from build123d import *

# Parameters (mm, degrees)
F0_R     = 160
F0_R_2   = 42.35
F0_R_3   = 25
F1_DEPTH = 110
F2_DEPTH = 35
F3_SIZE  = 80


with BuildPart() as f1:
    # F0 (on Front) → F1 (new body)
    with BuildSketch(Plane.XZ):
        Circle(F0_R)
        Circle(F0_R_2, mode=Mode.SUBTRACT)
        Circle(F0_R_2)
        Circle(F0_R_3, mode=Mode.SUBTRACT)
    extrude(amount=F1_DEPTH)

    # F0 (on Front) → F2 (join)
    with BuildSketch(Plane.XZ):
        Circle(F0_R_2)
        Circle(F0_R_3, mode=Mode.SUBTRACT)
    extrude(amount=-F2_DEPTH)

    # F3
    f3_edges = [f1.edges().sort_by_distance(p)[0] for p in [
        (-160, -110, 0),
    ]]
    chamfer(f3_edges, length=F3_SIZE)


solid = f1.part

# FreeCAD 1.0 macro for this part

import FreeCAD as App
import Part
import Sketcher


def edges_at(feature, points):
    """Names of the edges that pass closest to the given points."""
    edges = feature.Shape.Edges
    near = lambda p: min(range(len(edges)), key=lambda i: edges[i].distToShape(Part.Vertex(*p))[0])
    return sorted({f"Edge{near(p) + 1}" for p in points})

doc = App.newDocument("Part")
params = doc.addObject("Spreadsheet::Sheet", "Params")
for row, (alias, value) in enumerate([
    ("sketch1_diameter", "320 mm"),
    ("sketch1_diameter2", "50 mm"),
    ("pad1_length", "110 mm"),
    ("sketch2_diameter", "50 mm"),
    ("sketch2_diameter2", "84.7 mm"),
    ("pad2_length", "35 mm"),
    ("chamfer_size", "80 mm"),
], start=1):
    params.set(f"A{row}", alias)
    params.set(f"B{row}", "=" + value)
    params.setAlias(f"B{row}", alias)

body = doc.addObject("PartDesign::Body", "Body")

# Sketch on XZ plane
sketch1 = doc.addObject("Sketcher::SketchObject", "Sketch")
body.addObject(sketch1)
sketch1.AttachmentSupport = (doc.XZ_Plane, [""])
sketch1.MapMode = "FlatFace"
sketch1.addGeometry(Part.Circle(App.Vector(0, 0, 0), App.Vector(0, 0, 1), 160), False)
sketch1.addGeometry(Part.Circle(App.Vector(0, 0, 0), App.Vector(0, 0, 1), 25), False)
sketch1.addConstraint(Sketcher.Constraint("Coincident", 0, 3, -1, 1))
sketch1.addConstraint(Sketcher.Constraint("Coincident", 1, 3, -1, 1))
sketch1.addConstraint(Sketcher.Constraint("Diameter", 0, 320.0))
sketch1.addConstraint(Sketcher.Constraint("Diameter", 1, 50.0))
sketch1.setExpression("Constraints[2]", "Params.sketch1_diameter")
sketch1.setExpression("Constraints[3]", "Params.sketch1_diameter2")
pad1 = doc.addObject("PartDesign::Pad", "Pad")
body.addObject(pad1)
pad1.Profile = sketch1
pad1.setExpression("Length", "Params.pad1_length")

# Sketch on XZ plane
sketch2 = doc.addObject("Sketcher::SketchObject", "Sketch001")
body.addObject(sketch2)
sketch2.AttachmentSupport = (doc.XZ_Plane, [""])
sketch2.MapMode = "FlatFace"
sketch2.addGeometry(Part.Circle(App.Vector(0, 0, 0), App.Vector(0, 0, 1), 42.35), False)
sketch2.addGeometry(Part.Circle(App.Vector(0, 0, 0), App.Vector(0, 0, 1), 25), False)
sketch2.addConstraint(Sketcher.Constraint("Coincident", 0, 3, -1, 1))
sketch2.addConstraint(Sketcher.Constraint("Coincident", 1, 3, -1, 1))
sketch2.addConstraint(Sketcher.Constraint("Diameter", 1, 50.0))
sketch2.addConstraint(Sketcher.Constraint("Diameter", 0, 84.7))
sketch2.setExpression("Constraints[2]", "Params.sketch2_diameter")
sketch2.setExpression("Constraints[3]", "Params.sketch2_diameter2")
pad2 = doc.addObject("PartDesign::Pad", "Pad001")
body.addObject(pad2)
pad2.Profile = sketch2
pad2.setExpression("Length", "Params.pad2_length")
pad2.Reversed = True
doc.recompute()

chamfer = doc.addObject("PartDesign::Chamfer", "Chamfer")
body.addObject(chamfer)
chamfer.Base = (pad2, edges_at(pad2, [(-160, -110, 0)]))
chamfer.setExpression("Size", "Params.chamfer_size")

doc.recompute()
